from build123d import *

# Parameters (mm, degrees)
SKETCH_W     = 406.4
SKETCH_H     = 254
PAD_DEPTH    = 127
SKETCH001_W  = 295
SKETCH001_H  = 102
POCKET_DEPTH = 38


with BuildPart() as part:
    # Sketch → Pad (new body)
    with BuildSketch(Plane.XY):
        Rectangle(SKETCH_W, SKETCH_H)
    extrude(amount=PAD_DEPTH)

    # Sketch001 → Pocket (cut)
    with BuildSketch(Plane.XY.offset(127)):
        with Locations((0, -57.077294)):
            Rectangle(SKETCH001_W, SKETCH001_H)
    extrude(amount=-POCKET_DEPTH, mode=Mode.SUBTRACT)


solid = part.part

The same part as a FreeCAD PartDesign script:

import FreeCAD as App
import Part
import Sketcher
Q = App.Units.Quantity

doc = App.newDocument("Part")
params = doc.addObject("Spreadsheet::Sheet", "Params")
for row, (alias, value) in enumerate([
    ("sketch1_height", "254 mm"),
    ("sketch1_width", "406.4 mm"),
    ("pad1_length", "127 mm"),
    ("sketch2_width", "295 mm"),
    ("sketch2_height", "102 mm"),
    ("pocket1_length", "38 mm"),
], start=1):
    params.set(f"A{row}", alias)
    params.set(f"B{row}", "=" + value)
    params.setAlias(f"B{row}", alias)

body = doc.addObject("PartDesign::Body", "Body")

# Sketch on XY plane
sketch1 = body.newObject("Sketcher::SketchObject", "Sketch")
sketch1.AttachmentSupport = (doc.getObject("XY_Plane"), [""])
sketch1.MapMode = "FlatFace"
sketch1.addGeometry([
    Part.LineSegment(App.Vector(-203, 127, 0), App.Vector(-203, -127, 0)),
    Part.LineSegment(App.Vector(-203, -127, 0), App.Vector(203, -127, 0)),
    Part.LineSegment(App.Vector(203, -127, 0), App.Vector(203, 127, 0)),
    Part.LineSegment(App.Vector(203, 127, 0), App.Vector(-203, 127, 0)),
], False)
sketch1.addConstraint([
    Sketcher.Constraint("Coincident", 0, 2, 1, 1),
    Sketcher.Constraint("Coincident", 1, 2, 2, 1),
    Sketcher.Constraint("Coincident", 2, 2, 3, 1),
    Sketcher.Constraint("Coincident", 3, 2, 0, 1),
    Sketcher.Constraint("Vertical", 0),
    Sketcher.Constraint("Horizontal", 1),
    Sketcher.Constraint("Vertical", 2),
    Sketcher.Constraint("Horizontal", 3),
    Sketcher.Constraint("Symmetric", 0, 2, 2, 2, -1, 1),
    Sketcher.Constraint("DistanceY", 0, 2, 0, 1, Q("254 mm")),
    Sketcher.Constraint("DistanceX", 1, 1, 1, 2, Q("406.4 mm")),
])
sketch1.setExpression("Constraints[9]", "Params.sketch1_height")
sketch1.setExpression("Constraints[10]", "Params.sketch1_width")
pad1 = body.newObject("PartDesign::Pad", "Pad")
pad1.Profile = sketch1
pad1.setExpression("Length", "Params.pad1_length")

# Sketch on XY plane
sketch2 = body.newObject("Sketcher::SketchObject", "Sketch001")
sketch2.AttachmentSupport = (doc.getObject("XY_Plane"), [""])
sketch2.MapMode = "FlatFace"
sketch2.AttachmentOffset = App.Placement(App.Vector(0, 0, 127), App.Rotation())
sketch2.addGeometry([
    Part.LineSegment(App.Vector(-148, -6, 0), App.Vector(-148, -108, 0)),
    Part.LineSegment(App.Vector(-148, -108, 0), App.Vector(148, -108, 0)),
    Part.LineSegment(App.Vector(148, -108, 0), App.Vector(148, -6, 0)),
    Part.LineSegment(App.Vector(148, -6, 0), App.Vector(-148, -6, 0)),
], False)
sketch2.addConstraint([
    Sketcher.Constraint("Coincident", 0, 2, 1, 1),
    Sketcher.Constraint("Coincident", 1, 2, 2, 1),
    Sketcher.Constraint("Coincident", 2, 2, 3, 1),
    Sketcher.Constraint("Coincident", 3, 2, 0, 1),
    Sketcher.Constraint("Vertical", 0),
    Sketcher.Constraint("Horizontal", 1),
    Sketcher.Constraint("Vertical", 2),
    Sketcher.Constraint("Horizontal", 3),
    Sketcher.Constraint("DistanceX", 1, 1, 1, 2, Q("295 mm")),
    Sketcher.Constraint("DistanceY", 0, 2, 0, 1, Q("102 mm")),
    Sketcher.Constraint("DistanceX", 0, 2, -1, 1, Q("147.5 mm")),
    Sketcher.Constraint("DistanceY", 0, 2, -1, 1, Q("108.077294 mm")),
])
sketch2.setExpression("Constraints[8]", "Params.sketch2_width")
sketch2.setExpression("Constraints[9]", "Params.sketch2_height")
pocket1 = body.newObject("PartDesign::Pocket", "Pocket")
pocket1.Profile = sketch2
pocket1.setExpression("Length", "Params.pocket1_length")

doc.recompute()
